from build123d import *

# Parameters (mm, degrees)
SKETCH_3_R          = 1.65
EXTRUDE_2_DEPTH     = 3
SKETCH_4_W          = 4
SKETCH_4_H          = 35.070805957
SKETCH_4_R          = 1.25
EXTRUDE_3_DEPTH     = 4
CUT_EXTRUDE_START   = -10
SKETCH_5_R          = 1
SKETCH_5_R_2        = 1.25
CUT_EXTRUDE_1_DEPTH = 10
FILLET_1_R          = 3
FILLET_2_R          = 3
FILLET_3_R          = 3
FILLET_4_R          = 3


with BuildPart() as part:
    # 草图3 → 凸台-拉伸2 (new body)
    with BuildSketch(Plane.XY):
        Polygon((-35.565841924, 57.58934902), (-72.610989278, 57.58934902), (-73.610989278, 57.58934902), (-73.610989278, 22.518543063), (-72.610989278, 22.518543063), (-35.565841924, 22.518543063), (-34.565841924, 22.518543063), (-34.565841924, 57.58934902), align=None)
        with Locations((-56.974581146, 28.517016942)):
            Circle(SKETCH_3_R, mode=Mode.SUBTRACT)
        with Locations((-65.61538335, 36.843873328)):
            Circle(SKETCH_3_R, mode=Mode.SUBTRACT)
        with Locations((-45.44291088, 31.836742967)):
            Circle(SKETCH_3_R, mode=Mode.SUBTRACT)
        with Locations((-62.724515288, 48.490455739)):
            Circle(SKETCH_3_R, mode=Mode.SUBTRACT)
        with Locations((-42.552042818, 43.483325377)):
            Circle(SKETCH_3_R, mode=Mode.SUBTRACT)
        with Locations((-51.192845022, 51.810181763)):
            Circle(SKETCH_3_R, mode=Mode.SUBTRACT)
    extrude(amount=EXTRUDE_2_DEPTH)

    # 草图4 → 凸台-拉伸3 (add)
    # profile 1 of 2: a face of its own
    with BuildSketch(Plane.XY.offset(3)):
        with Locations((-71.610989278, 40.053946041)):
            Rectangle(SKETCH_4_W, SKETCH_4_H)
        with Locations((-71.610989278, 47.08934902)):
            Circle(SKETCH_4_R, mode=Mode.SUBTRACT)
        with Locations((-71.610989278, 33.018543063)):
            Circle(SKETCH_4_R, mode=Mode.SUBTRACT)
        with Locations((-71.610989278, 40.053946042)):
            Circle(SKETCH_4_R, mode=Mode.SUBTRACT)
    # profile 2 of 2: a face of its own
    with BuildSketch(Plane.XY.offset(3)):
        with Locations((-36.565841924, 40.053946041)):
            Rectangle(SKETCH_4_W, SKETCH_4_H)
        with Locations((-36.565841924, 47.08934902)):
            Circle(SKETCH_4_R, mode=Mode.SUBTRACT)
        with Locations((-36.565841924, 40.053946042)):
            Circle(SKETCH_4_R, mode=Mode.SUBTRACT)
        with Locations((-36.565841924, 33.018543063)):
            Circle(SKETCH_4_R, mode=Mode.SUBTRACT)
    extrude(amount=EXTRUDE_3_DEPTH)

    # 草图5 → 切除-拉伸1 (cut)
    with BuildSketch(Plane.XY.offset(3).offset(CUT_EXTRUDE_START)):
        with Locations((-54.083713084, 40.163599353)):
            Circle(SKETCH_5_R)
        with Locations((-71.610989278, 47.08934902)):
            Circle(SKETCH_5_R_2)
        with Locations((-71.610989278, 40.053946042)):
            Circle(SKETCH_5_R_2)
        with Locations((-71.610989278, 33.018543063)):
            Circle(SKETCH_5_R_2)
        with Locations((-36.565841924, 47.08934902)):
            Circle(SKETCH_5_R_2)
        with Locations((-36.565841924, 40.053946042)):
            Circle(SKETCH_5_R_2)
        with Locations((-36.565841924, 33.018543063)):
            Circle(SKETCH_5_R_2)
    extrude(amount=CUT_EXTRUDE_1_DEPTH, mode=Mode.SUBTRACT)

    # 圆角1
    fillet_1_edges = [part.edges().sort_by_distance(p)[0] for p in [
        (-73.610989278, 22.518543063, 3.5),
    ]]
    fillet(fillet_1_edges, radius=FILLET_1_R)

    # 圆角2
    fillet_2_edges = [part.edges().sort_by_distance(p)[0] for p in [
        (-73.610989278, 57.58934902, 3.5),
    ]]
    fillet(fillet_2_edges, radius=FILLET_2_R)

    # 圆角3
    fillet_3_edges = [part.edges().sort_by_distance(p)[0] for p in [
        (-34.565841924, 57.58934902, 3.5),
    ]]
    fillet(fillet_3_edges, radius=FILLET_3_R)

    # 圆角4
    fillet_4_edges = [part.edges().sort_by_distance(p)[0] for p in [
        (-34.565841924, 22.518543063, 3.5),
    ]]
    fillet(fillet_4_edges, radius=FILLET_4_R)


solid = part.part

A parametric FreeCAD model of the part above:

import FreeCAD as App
import Part
import Sketcher
from FreeCAD import Vector


def edges_at(feature, points):
    """Names of the edges that pass closest to the given points."""
    edges = feature.Shape.Edges
    near = lambda p: min(range(len(edges)), key=lambda i: edges[i].distToShape(Part.Vertex(*p))[0])
    return sorted({f"Edge{near(p) + 1}" for p in points})


def add_polygon(sketch, points):
    """Adds a closed chain of lines whose ends are joined by coincident constraints."""
    first, n = sketch.GeometryCount, len(points)
    for a, b in zip(points, points[1:] + points[:1]):
        sketch.addGeometry(Part.LineSegment(App.Vector(*a, 0), App.Vector(*b, 0)), False)
    for i in range(n):
        sketch.addConstraint(Sketcher.Constraint("Coincident", first + i, 2, first + (i + 1) % n, 1))

doc = App.newDocument("Part")
body = doc.addObject("PartDesign::Body", "Body")

sketch1 = doc.addObject("Sketcher::SketchObject", "Sketch")
body.addObject(sketch1)
sketch1.AttachmentSupport = (doc.XY_Plane, [""])
sketch1.MapMode = "FlatFace"
add_polygon(sketch1, [(-73.6, 57.6), (-73.6, 22.5), (-34.6, 22.5), (-34.6, 57.6)])
sketch1.addGeometry(Part.Circle(Vector(-57, 28.5, 0), Vector(0, 0, 1), 1.6), False)
sketch1.addGeometry(Part.Circle(Vector(-65.6, 36.8, 0), Vector(0, 0, 1), 1.6), False)
sketch1.addGeometry(Part.Circle(Vector(-45.4, 31.8, 0), Vector(0, 0, 1), 1.6), False)
sketch1.addGeometry(Part.Circle(Vector(-62.7, 48.5, 0), Vector(0, 0, 1), 1.6), False)
sketch1.addGeometry(Part.Circle(Vector(-42.6, 43.5, 0), Vector(0, 0, 1), 1.6), False)
sketch1.addGeometry(Part.Circle(Vector(-51.2, 51.8, 0), Vector(0, 0, 1), 1.6), False)
sketch1.addConstraint(Sketcher.Constraint("Vertical", 0))
sketch1.addConstraint(Sketcher.Constraint("Horizontal", 1))
sketch1.addConstraint(Sketcher.Constraint("Vertical", 2))
sketch1.addConstraint(Sketcher.Constraint("Horizontal", 3))
sketch1.addConstraint(Sketcher.Constraint("Equal", 4, 5))
sketch1.addConstraint(Sketcher.Constraint("Equal", 5, 6))
sketch1.addConstraint(Sketcher.Constraint("Equal", 6, 7))
sketch1.addConstraint(Sketcher.Constraint("Equal", 7, 8))
sketch1.addConstraint(Sketcher.Constraint("Equal", 8, 9))
sketch1.addConstraint(Sketcher.Constraint("Diameter", 4, 3.3))
sketch1.addConstraint(Sketcher.Constraint("DistanceY", 0, 2, 6, 3, 9.3182))
sketch1.addConstraint(Sketcher.Constraint("DistanceX", 8, 3, 1, 2, 7.986201))
sketch1.addConstraint(Sketcher.Constraint("DistanceX", 1, 1, 1, 2, 39.045147))
sketch1.addConstraint(Sketcher.Constraint("DistanceY", 0, 2, 0, 1, 35.070806))
sketch1.addConstraint(Sketcher.Constraint("DistanceX", 4, 3, -1, 1, 56.974581))
sketch1.addConstraint(Sketcher.Constraint("DistanceX", 6, 3, -1, 1, 45.442911))
sketch1.addConstraint(Sketcher.Constraint("DistanceY", -1, 1, 9, 3, 51.810182))
sketch1.addConstraint(Sketcher.Constraint("DistanceX", 0, 2, -1, 1, 73.610989))
sketch1.addConstraint(Sketcher.Constraint("DistanceY", -1, 1, 2, 2, 57.589349))
sketch1.addConstraint(Sketcher.Constraint("DistanceY", 6, 3, 5, 3, 5.00713))
sketch1.addConstraint(Sketcher.Constraint("DistanceX", 5, 3, 7, 3, 2.890868))
sketch1.addConstraint(Sketcher.Constraint("DistanceY", 4, 3, 7, 3, 19.973439))
sketch1.addConstraint(Sketcher.Constraint("DistanceY", 4, 3, 8, 3, 14.966308))
sketch1.addConstraint(Sketcher.Constraint("DistanceX", 5, 3, 8, 3, 23.063341))
sketch1.addConstraint(Sketcher.Constraint("DistanceX", 7, 3, 9, 3, 11.53167))
sketch1.addConstraint(Sketcher.Constraint("DistanceY", -1, 1, 4, 3, 28.517017))
pad1 = doc.addObject("PartDesign::Pad", "Pad")
body.addObject(pad1)
pad1.Profile = sketch1
pad1.Length = 3

sketch2 = doc.addObject("Sketcher::SketchObject", "Sketch001")
body.addObject(sketch2)
sketch2.AttachmentSupport = (doc.XY_Plane, [""])
sketch2.MapMode = "FlatFace"
sketch2.AttachmentOffset = App.Placement(Vector(0, 0, 3), App.Rotation())
add_polygon(sketch2, [(-73.6, 57.6), (-73.6, 22.5), (-69.6, 22.5), (-69.6, 57.6)])
sketch2.addGeometry(Part.Circle(Vector(-71.6, 33, 0), Vector(0, 0, 1), 1.2), False)
sketch2.addGeometry(Part.Circle(Vector(-71.6, 40.1, 0), Vector(0, 0, 1), 1.2), False)
sketch2.addGeometry(Part.Circle(Vector(-71.6, 47.1, 0), Vector(0, 0, 1), 1.2), False)
add_polygon(sketch2, [(-38.6, 57.6), (-38.6, 22.5), (-34.6, 22.5), (-34.6, 57.6)])
sketch2.addGeometry(Part.Circle(Vector(-36.6, 33, 0), Vector(0, 0, 1), 1.2), False)
sketch2.addGeometry(Part.Circle(Vector(-36.6, 40.1, 0), Vector(0, 0, 1), 1.2), False)
sketch2.addGeometry(Part.Circle(Vector(-36.6, 47.1, 0), Vector(0, 0, 1), 1.2), False)
sketch2.addConstraint(Sketcher.Constraint("Vertical", 0))
sketch2.addConstraint(Sketcher.Constraint("Horizontal", 1))
sketch2.addConstraint(Sketcher.Constraint("Vertical", 2))
sketch2.addConstraint(Sketcher.Constraint("Horizontal", 3))
sketch2.addConstraint(Sketcher.Constraint("Vertical", 7))
sketch2.addConstraint(Sketcher.Constraint("Horizontal", 8))
sketch2.addConstraint(Sketcher.Constraint("Vertical", 9))
sketch2.addConstraint(Sketcher.Constraint("Horizontal", 10))
sketch2.addConstraint(Sketcher.Constraint("Equal", 4, 5))
sketch2.addConstraint(Sketcher.Constraint("Equal", 5, 6))
sketch2.addConstraint(Sketcher.Constraint("Equal", 6, 11))
sketch2.addConstraint(Sketcher.Constraint("Equal", 11, 12))
sketch2.addConstraint(Sketcher.Constraint("Equal", 12, 13))
sketch2.addConstraint(Sketcher.Constraint("Horizontal", 4, 3, 11, 3))
sketch2.addConstraint(Sketcher.Constraint("Horizontal", 5, 3, 12, 3))
sketch2.addConstraint(Sketcher.Constraint("Horizontal", 6, 3, 13, 3))
sketch2.addConstraint(Sketcher.Constraint("Horizontal", 1, 2, 7, 2))
sketch2.addConstraint(Sketcher.Constraint("Horizontal", 3, 2, 9, 2))
sketch2.addConstraint(Sketcher.Constraint("Vertical", 4, 3, 5, 3))
sketch2.addConstraint(Sketcher.Constraint("Vertical", 5, 3, 6, 3))
sketch2.addConstraint(Sketcher.Constraint("Vertical", 11, 3, 12, 3))
sketch2.addConstraint(Sketcher.Constraint("Vertical", 12, 3, 13, 3))
sketch2.addConstraint(Sketcher.Constraint("Equal", 3, 8))
sketch2.addConstraint(Sketcher.Constraint("Diameter", 4, 2.5))
sketch2.addConstraint(Sketcher.Constraint("DistanceX", 1, 1, 1, 2, 4.0))
sketch2.addConstraint(Sketcher.Constraint("DistanceX", 0, 2, 4, 3, 2.0))
sketch2.addConstraint(Sketcher.Constraint("DistanceX", 7, 2, 11, 3, 2.0))
sketch2.addConstraint(Sketcher.Constraint("DistanceY", 0, 2, 4, 3, 10.5))
sketch2.addConstraint(Sketcher.Constraint("DistanceY", 6, 3, 2, 2, 10.5))
sketch2.addConstraint(Sketcher.Constraint("DistanceY", 0, 2, 0, 1, 35.070806))
sketch2.addConstraint(Sketcher.Constraint("DistanceX", 4, 3, -1, 1, 71.610989))
sketch2.addConstraint(Sketcher.Constraint("DistanceY", -1, 1, 6, 3, 47.089349))
sketch2.addConstraint(Sketcher.Constraint("DistanceX", 11, 3, -1, 1, 36.565842))
sketch2.addConstraint(Sketcher.Constraint("DistanceY", -1, 1, 5, 3, 40.053946))
pad2 = doc.addObject("PartDesign::Pad", "Pad001")
body.addObject(pad2)
pad2.Profile = sketch2
pad2.Length = 4

sketch3 = doc.addObject("Sketcher::SketchObject", "Sketch002")
body.addObject(sketch3)
sketch3.AttachmentSupport = (doc.XY_Plane, [""])
sketch3.MapMode = "FlatFace"
sketch3.AttachmentOffset = App.Placement(Vector(0, 0, -7), App.Rotation())
sketch3.addGeometry(Part.Circle(Vector(-54.1, 40.2, 0), Vector(0, 0, 1), 1), False)
sketch3.addGeometry(Part.Circle(Vector(-71.6, 47.1, 0), Vector(0, 0, 1), 1.2), False)
sketch3.addGeometry(Part.Circle(Vector(-71.6, 40.1, 0), Vector(0, 0, 1), 1.2), False)
sketch3.addGeometry(Part.Circle(Vector(-71.6, 33, 0), Vector(0, 0, 1), 1.2), False)
sketch3.addGeometry(Part.Circle(Vector(-36.6, 47.1, 0), Vector(0, 0, 1), 1.2), False)
sketch3.addGeometry(Part.Circle(Vector(-36.6, 40.1, 0), Vector(0, 0, 1), 1.2), False)
sketch3.addGeometry(Part.Circle(Vector(-36.6, 33, 0), Vector(0, 0, 1), 1.2), False)
sketch3.addConstraint(Sketcher.Constraint("Equal", 1, 2))
sketch3.addConstraint(Sketcher.Constraint("Equal", 2, 3))
sketch3.addConstraint(Sketcher.Constraint("Equal", 3, 4))
sketch3.addConstraint(Sketcher.Constraint("Equal", 4, 5))
sketch3.addConstraint(Sketcher.Constraint("Equal", 5, 6))
sketch3.addConstraint(Sketcher.Constraint("Horizontal", 1, 3, 4, 3))
sketch3.addConstraint(Sketcher.Constraint("Horizontal", 2, 3, 5, 3))
sketch3.addConstraint(Sketcher.Constraint("Horizontal", 3, 3, 6, 3))
sketch3.addConstraint(Sketcher.Constraint("Vertical", 1, 3, 2, 3))
sketch3.addConstraint(Sketcher.Constraint("Vertical", 2, 3, 3, 3))
sketch3.addConstraint(Sketcher.Constraint("Vertical", 4, 3, 5, 3))
sketch3.addConstraint(Sketcher.Constraint("Vertical", 5, 3, 6, 3))
sketch3.addConstraint(Sketcher.Constraint("Diameter", 0, 2.0))
sketch3.addConstraint(Sketcher.Constraint("Diameter", 1, 2.5))
sketch3.addConstraint(Sketcher.Constraint("DistanceY", -1, 1, 0, 3, 40.163599))
sketch3.addConstraint(Sketcher.Constraint("DistanceX", 1, 3, -1, 1, 71.610989))
sketch3.addConstraint(Sketcher.Constraint("DistanceY", -1, 1, 1, 3, 47.089349))
sketch3.addConstraint(Sketcher.Constraint("DistanceX", 4, 3, -1, 1, 36.565842))
sketch3.addConstraint(Sketcher.Constraint("DistanceX", 0, 3, 4, 3, 17.517871))
sketch3.addConstraint(Sketcher.Constraint("DistanceY", -1, 1, 2, 3, 40.053946))
sketch3.addConstraint(Sketcher.Constraint("DistanceY", -1, 1, 3, 3, 33.018543))
pocket1 = doc.addObject("PartDesign::Pocket", "Pocket")
body.addObject(pocket1)
pocket1.Profile = sketch3
pocket1.Length = 10
pocket1.Reversed = True
doc.recompute()

fillet = doc.addObject("PartDesign::Fillet", "Fillet")
body.addObject(fillet)
fillet.Base = (pocket1, edges_at(pocket1, [(-73.611, 22.519, 5)]))
fillet.Radius = 3
doc.recompute()

fillet2 = doc.addObject("PartDesign::Fillet", "Fillet001")
body.addObject(fillet2)
fillet2.Base = (fillet, edges_at(fillet, [(-73.611, 57.589, 5)]))
fillet2.Radius = 3
doc.recompute()

fillet3 = doc.addObject("PartDesign::Fillet", "Fillet002")
body.addObject(fillet3)
fillet3.Base = (fillet2, edges_at(fillet2, [(-34.566, 57.589, 5)]))
fillet3.Radius = 3
doc.recompute()

fillet4 = doc.addObject("PartDesign::Fillet", "Fillet003")
body.addObject(fillet4)
fillet4.Base = (fillet3, edges_at(fillet3, [(-34.566, 22.519, 5)]))
fillet4.Radius = 3

doc.recompute()
